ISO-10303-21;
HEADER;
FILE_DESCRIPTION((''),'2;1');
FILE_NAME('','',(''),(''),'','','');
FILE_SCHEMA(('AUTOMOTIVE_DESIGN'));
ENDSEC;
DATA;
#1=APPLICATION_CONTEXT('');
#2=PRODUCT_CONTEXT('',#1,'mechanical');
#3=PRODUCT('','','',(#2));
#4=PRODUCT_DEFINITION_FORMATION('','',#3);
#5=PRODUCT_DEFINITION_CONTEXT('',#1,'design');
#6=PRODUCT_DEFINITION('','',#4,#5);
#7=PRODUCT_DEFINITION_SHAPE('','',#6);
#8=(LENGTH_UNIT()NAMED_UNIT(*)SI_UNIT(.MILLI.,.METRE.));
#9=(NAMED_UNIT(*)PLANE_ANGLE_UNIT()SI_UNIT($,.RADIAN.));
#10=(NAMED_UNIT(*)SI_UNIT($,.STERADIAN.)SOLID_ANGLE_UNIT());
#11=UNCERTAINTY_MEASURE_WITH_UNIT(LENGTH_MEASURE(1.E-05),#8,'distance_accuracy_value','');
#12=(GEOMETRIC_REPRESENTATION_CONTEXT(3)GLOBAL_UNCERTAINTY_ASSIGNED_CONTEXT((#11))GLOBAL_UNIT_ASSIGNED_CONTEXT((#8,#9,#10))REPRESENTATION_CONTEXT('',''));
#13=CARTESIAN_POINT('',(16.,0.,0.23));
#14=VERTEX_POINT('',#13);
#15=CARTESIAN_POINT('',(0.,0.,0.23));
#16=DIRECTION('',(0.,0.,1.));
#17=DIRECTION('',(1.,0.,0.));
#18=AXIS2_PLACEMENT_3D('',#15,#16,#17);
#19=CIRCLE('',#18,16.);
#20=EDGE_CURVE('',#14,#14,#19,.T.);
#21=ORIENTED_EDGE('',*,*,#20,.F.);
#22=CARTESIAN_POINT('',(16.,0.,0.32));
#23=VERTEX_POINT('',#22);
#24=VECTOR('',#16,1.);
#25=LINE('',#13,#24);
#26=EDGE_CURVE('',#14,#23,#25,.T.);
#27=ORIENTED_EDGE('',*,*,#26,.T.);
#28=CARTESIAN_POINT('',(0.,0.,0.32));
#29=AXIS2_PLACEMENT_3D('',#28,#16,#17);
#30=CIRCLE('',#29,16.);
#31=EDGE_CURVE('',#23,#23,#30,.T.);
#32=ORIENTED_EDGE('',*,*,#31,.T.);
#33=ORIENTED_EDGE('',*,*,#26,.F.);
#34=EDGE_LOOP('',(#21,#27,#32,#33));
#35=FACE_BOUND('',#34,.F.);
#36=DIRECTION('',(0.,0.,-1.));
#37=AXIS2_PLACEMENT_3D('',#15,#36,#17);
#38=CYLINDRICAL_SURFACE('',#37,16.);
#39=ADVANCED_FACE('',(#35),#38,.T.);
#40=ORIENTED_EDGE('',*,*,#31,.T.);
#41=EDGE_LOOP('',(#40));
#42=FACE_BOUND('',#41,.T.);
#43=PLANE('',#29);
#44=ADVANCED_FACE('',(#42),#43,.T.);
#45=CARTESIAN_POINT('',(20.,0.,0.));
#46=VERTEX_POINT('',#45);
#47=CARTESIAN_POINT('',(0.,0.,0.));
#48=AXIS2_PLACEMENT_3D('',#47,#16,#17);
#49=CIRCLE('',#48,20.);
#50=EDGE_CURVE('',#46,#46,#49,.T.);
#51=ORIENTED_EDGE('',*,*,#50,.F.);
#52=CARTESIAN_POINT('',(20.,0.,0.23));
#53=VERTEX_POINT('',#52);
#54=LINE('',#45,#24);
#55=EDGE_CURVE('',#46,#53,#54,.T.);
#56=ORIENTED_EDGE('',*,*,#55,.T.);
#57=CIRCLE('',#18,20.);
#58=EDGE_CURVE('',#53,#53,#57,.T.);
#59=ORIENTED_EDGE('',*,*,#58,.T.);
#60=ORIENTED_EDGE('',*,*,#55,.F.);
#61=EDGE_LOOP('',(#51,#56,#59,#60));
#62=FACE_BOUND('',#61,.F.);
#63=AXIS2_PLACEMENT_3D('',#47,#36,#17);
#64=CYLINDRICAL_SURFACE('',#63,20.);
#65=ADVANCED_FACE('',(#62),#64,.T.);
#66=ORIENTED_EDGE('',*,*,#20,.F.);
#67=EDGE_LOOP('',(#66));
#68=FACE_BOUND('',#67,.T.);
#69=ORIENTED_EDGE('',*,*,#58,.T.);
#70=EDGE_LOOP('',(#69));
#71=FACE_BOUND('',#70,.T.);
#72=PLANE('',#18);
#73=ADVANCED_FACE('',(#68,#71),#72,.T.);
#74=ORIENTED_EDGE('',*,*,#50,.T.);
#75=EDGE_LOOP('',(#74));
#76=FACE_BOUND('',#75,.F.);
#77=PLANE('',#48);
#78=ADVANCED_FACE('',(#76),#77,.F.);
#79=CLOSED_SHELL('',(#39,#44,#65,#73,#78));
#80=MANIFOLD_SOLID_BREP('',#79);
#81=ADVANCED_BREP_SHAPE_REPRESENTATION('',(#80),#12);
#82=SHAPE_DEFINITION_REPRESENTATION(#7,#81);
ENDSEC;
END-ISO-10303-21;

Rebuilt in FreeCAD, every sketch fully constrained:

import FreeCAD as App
import Part
import Sketcher
from FreeCAD import Vector
Q = App.Units.Quantity

doc = App.newDocument("Part")
body = doc.addObject("PartDesign::Body", "Body")

sketch1 = body.newObject("Sketcher::SketchObject", "Sketch")
sketch1.AttachmentSupport = (doc.getObject("XY_Plane"), [""])
sketch1.MapMode = "FlatFace"
sketch1.addGeometry(Part.Circle(Vector(0, 0, 0), Vector(0, 0, 1), 20), False)
sketch1.addConstraint(Sketcher.Constraint("Coincident", 0, 3, -1, 1))
sketch1.addConstraint(Sketcher.Constraint("Diameter", 0, Q("40 mm")))
pad1 = body.newObject("PartDesign::Pad", "Pad")
pad1.Profile = sketch1
pad1.Length = 0.23

sketch2 = body.newObject("Sketcher::SketchObject", "Sketch001")
sketch2.AttachmentSupport = (doc.getObject("XY_Plane"), [""])
sketch2.MapMode = "FlatFace"
sketch2.AttachmentOffset = App.Placement(Vector(0, 0, 0.23), App.Rotation())
sketch2.addGeometry(Part.Circle(Vector(0, 0, 0), Vector(0, 0, 1), 16), False)
sketch2.addConstraint(Sketcher.Constraint("Coincident", 0, 3, -1, 1))
sketch2.addConstraint(Sketcher.Constraint("Diameter", 0, Q("32 mm")))
pad2 = body.newObject("PartDesign::Pad", "Pad001")
pad2.Profile = sketch2
pad2.Length = 0.09

doc.recompute()
